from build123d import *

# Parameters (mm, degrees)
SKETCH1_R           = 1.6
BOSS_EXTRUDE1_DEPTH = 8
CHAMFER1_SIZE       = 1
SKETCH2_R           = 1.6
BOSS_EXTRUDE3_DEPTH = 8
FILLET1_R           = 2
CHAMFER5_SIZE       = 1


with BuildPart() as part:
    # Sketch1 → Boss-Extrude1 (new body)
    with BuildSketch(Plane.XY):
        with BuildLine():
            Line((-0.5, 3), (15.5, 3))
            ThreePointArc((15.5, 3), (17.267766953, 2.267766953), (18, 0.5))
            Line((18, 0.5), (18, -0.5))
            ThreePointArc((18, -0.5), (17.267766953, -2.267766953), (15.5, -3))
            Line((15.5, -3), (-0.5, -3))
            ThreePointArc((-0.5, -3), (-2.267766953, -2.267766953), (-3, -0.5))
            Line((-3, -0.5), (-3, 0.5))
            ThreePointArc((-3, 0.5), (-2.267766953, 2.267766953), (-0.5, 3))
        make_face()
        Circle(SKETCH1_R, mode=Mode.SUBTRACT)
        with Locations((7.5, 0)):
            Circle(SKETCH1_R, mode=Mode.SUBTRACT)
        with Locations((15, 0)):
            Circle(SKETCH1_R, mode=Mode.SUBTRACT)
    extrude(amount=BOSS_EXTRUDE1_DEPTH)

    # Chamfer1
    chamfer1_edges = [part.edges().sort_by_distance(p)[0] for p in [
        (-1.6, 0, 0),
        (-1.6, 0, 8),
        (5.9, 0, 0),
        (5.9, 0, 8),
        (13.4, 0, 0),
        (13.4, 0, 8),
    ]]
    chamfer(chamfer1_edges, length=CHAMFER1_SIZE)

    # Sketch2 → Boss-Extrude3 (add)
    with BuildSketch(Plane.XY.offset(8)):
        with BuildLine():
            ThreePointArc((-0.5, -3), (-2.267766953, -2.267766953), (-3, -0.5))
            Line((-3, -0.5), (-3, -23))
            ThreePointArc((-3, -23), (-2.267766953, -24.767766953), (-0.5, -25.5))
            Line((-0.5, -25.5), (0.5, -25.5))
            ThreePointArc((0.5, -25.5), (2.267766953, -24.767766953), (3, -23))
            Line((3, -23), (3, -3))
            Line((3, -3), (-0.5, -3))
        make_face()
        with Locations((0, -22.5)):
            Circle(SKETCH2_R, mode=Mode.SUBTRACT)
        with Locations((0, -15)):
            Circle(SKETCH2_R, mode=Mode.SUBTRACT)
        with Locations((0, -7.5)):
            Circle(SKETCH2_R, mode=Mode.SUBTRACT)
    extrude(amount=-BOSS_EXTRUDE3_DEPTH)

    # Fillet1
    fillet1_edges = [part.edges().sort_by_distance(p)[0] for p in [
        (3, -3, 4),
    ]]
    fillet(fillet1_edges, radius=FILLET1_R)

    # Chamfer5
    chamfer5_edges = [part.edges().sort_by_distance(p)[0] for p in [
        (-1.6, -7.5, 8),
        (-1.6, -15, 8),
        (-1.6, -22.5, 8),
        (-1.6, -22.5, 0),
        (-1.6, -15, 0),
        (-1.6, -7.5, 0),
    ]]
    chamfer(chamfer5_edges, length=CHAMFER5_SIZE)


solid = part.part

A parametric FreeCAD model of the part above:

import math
import FreeCAD as App
import Part
import Sketcher

V = App.Vector


def edges_at(feature, points):
    """Names of the edges that pass closest to the given points."""
    edges = feature.Shape.Edges
    near = lambda p: min(range(len(edges)), key=lambda i: edges[i].distToShape(Part.Vertex(*p))[0])
    return sorted({f"Edge{near(p) + 1}" for p in points})

doc = App.newDocument("Part")
body = doc.addObject("PartDesign::Body", "Body")

# Sketch on XY plane
sketch1 = doc.addObject("Sketcher::SketchObject", "Sketch")
body.addObject(sketch1)
sketch1.AttachmentSupport = (doc.XY_Plane, [""])
sketch1.MapMode = "FlatFace"
sketch1.addGeometry(Part.LineSegment(V(15.5, 3, 0), V(-0.5, 3, 0)), False)
sketch1.addGeometry(Part.ArcOfCircle(Part.Circle(V(-0.5, 0.5, 0), V(0, 0, 1), 2.5), math.radians(90), math.radians(180)), False)
sketch1.addGeometry(Part.LineSegment(V(-3, 0.5, 0), V(-3, -0.5, 0)), False)
sketch1.addGeometry(Part.ArcOfCircle(Part.Circle(V(-0.5, -0.5, 0), V(0, 0, 1), 2.5), math.radians(180), math.radians(270)), False)
sketch1.addGeometry(Part.LineSegment(V(-0.5, -3, 0), V(15.5, -3, 0)), False)
sketch1.addGeometry(Part.ArcOfCircle(Part.Circle(V(15.5, -0.5, 0), V(0, 0, 1), 2.5), math.radians(-90), math.radians(0)), False)
sketch1.addGeometry(Part.LineSegment(V(18, -0.5, 0), V(18, 0.5, 0)), False)
sketch1.addGeometry(Part.ArcOfCircle(Part.Circle(V(15.5, 0.5, 0), V(0, 0, 1), 2.5), math.radians(0), math.radians(90)), False)
sketch1.addGeometry(Part.Circle(V(15, 0, 0), V(0, 0, 1), 1.6), False)
sketch1.addGeometry(Part.Circle(V(7.5, 0, 0), V(0, 0, 1), 1.6), False)
sketch1.addGeometry(Part.Circle(V(0, 0, 0), V(0, 0, 1), 1.6), False)
sketch1.addConstraint(Sketcher.Constraint("Tangent", 0, 2, 1, 1))
sketch1.addConstraint(Sketcher.Constraint("Tangent", 1, 2, 2, 1))
sketch1.addConstraint(Sketcher.Constraint("Tangent", 2, 2, 3, 1))
sketch1.addConstraint(Sketcher.Constraint("Tangent", 3, 2, 4, 1))
sketch1.addConstraint(Sketcher.Constraint("Tangent", 4, 2, 5, 1))
sketch1.addConstraint(Sketcher.Constraint("Tangent", 5, 2, 6, 1))
sketch1.addConstraint(Sketcher.Constraint("Tangent", 6, 2, 7, 1))
sketch1.addConstraint(Sketcher.Constraint("Tangent", 7, 2, 0, 1))
sketch1.addConstraint(Sketcher.Constraint("Horizontal", 0))
sketch1.addConstraint(Sketcher.Constraint("Vertical", 2))
sketch1.addConstraint(Sketcher.Constraint("Horizontal", 4))
sketch1.addConstraint(Sketcher.Constraint("Vertical", 6))
sketch1.addConstraint(Sketcher.Constraint("Coincident", 10, 3, -1, 1))
sketch1.addConstraint(Sketcher.Constraint("Equal", 1, 3))
sketch1.addConstraint(Sketcher.Constraint("Equal", 3, 5))
sketch1.addConstraint(Sketcher.Constraint("Equal", 5, 7))
sketch1.addConstraint(Sketcher.Constraint("Equal", 8, 9))
sketch1.addConstraint(Sketcher.Constraint("Equal", 9, 10))
sketch1.addConstraint(Sketcher.Constraint("PointOnObject", 8, 3, -1))
sketch1.addConstraint(Sketcher.Constraint("PointOnObject", 9, 3, -1))
sketch1.addConstraint(Sketcher.Constraint("Diameter", 8, 3.2))
sketch1.addConstraint(Sketcher.Constraint("Radius", 1, 2.5))
sketch1.addConstraint(Sketcher.Constraint("DistanceX", 0, 2, 0, 1, 16.0))
sketch1.addConstraint(Sketcher.Constraint("DistanceY", 2, 2, 2, 1, 1.0))
sketch1.addConstraint(Sketcher.Constraint("DistanceX", -1, 1, 8, 3, 15.0))
sketch1.addConstraint(Sketcher.Constraint("DistanceY", -1, 1, 0, 2, 3.0))
sketch1.addConstraint(Sketcher.Constraint("DistanceX", 1, 2, -1, 1, 3.0))
sketch1.addConstraint(Sketcher.Constraint("DistanceX", 1, 3, 9, 3, 8.0))
pad1 = doc.addObject("PartDesign::Pad", "Pad")
body.addObject(pad1)
pad1.Profile = sketch1
pad1.Length = 8
doc.recompute()

chamfer = doc.addObject("PartDesign::Chamfer", "Chamfer")
body.addObject(chamfer)
chamfer.Base = (pad1, edges_at(pad1, [
    (-1.6, 0, 0),
    (-1.6, 0, 8),
    (5.9, 0, 0),
    (5.9, 0, 8),
    (13.4, 0, 0),
    (13.4, 0, 8),
]))
chamfer.Size = 1

# Sketch on XY plane
sketch2 = doc.addObject("Sketcher::SketchObject", "Sketch001")
body.addObject(sketch2)
sketch2.AttachmentSupport = (doc.XY_Plane, [""])
sketch2.MapMode = "FlatFace"
sketch2.AttachmentOffset = App.Placement(V(0, 0, 8), App.Rotation())
sketch2.addGeometry(Part.ArcOfCircle(Part.Circle(V(-0.5, -0.5, 0), V(0, 0, 1), 2.5), math.radians(180), math.radians(270)), False)
sketch2.addGeometry(Part.LineSegment(V(-3, -0.5, 0), V(-3, -23, 0)), False)
sketch2.addGeometry(Part.ArcOfCircle(Part.Circle(V(-0.5, -23, 0), V(0, 0, 1), 2.5), math.radians(180), math.radians(270)), False)
sketch2.addGeometry(Part.LineSegment(V(-0.5, -25.5, 0), V(0.5, -25.5, 0)), False)
sketch2.addGeometry(Part.ArcOfCircle(Part.Circle(V(0.5, -23, 0), V(0, 0, 1), 2.5), math.radians(-90), math.radians(0)), False)
sketch2.addGeometry(Part.LineSegment(V(3, -23, 0), V(3, -3, 0)), False)
sketch2.addGeometry(Part.LineSegment(V(3, -3, 0), V(-0.5, -3, 0)), False)
sketch2.addGeometry(Part.Circle(V(0, -22.5, 0), V(0, 0, 1), 1.6), False)
sketch2.addGeometry(Part.Circle(V(0, -15, 0), V(0, 0, 1), 1.6), False)
sketch2.addGeometry(Part.Circle(V(0, -7.5, 0), V(0, 0, 1), 1.6), False)
sketch2.addConstraint(Sketcher.Constraint("Tangent", 0, 1, 1, 1))
sketch2.addConstraint(Sketcher.Constraint("Tangent", 1, 2, 2, 1))
sketch2.addConstraint(Sketcher.Constraint("Tangent", 2, 2, 3, 1))
sketch2.addConstraint(Sketcher.Constraint("Tangent", 3, 2, 4, 1))
sketch2.addConstraint(Sketcher.Constraint("Tangent", 4, 2, 5, 1))
sketch2.addConstraint(Sketcher.Constraint("Coincident", 5, 2, 6, 1))
sketch2.addConstraint(Sketcher.Constraint("Tangent", 6, 2, 0, 2))
sketch2.addConstraint(Sketcher.Constraint("Vertical", 1))
sketch2.addConstraint(Sketcher.Constraint("Horizontal", 3))
sketch2.addConstraint(Sketcher.Constraint("Vertical", 5))
sketch2.addConstraint(Sketcher.Constraint("Horizontal", 6))
sketch2.addConstraint(Sketcher.Constraint("Equal", 0, 2))
sketch2.addConstraint(Sketcher.Constraint("Equal", 2, 4))
sketch2.addConstraint(Sketcher.Constraint("Equal", 7, 8))
sketch2.addConstraint(Sketcher.Constraint("Equal", 8, 9))
sketch2.addConstraint(Sketcher.Constraint("PointOnObject", 7, 3, -2))
sketch2.addConstraint(Sketcher.Constraint("PointOnObject", 8, 3, -2))
sketch2.addConstraint(Sketcher.Constraint("PointOnObject", 9, 3, -2))
sketch2.addConstraint(Sketcher.Constraint("Diameter", 7, 3.2))
sketch2.addConstraint(Sketcher.Constraint("Radius", 0, 2.5))
sketch2.addConstraint(Sketcher.Constraint("DistanceX", 3, 1, 3, 2, 1.0))
sketch2.addConstraint(Sketcher.Constraint("DistanceY", 5, 1, 5, 2, 20.0))
sketch2.addConstraint(Sketcher.Constraint("DistanceY", 2, 3, -1, 1, 23.0))
sketch2.addConstraint(Sketcher.Constraint("DistanceY", 8, 3, -1, 1, 15.0))
sketch2.addConstraint(Sketcher.Constraint("DistanceX", 0, 1, -1, 1, 3.0))
sketch2.addConstraint(Sketcher.Constraint("DistanceY", 7, 3, 0, 3, 22.0))
sketch2.addConstraint(Sketcher.Constraint("DistanceY", 9, 3, 0, 3, 7.0))
pad2 = doc.addObject("PartDesign::Pad", "Pad001")
body.addObject(pad2)
pad2.Profile = sketch2
pad2.Length = 8
pad2.Reversed = True
doc.recompute()

fillet = doc.addObject("PartDesign::Fillet", "Fillet")
body.addObject(fillet)
fillet.Base = (pad2, edges_at(pad2, [(3, -3, 4)]))
fillet.Radius = 2
doc.recompute()

chamfer2 = doc.addObject("PartDesign::Chamfer", "Chamfer001")
body.addObject(chamfer2)
chamfer2.Base = (fillet, edges_at(fillet, [
    (-1.6, -7.5, 8),
    (-1.6, -15, 8),
    (-1.6, -22.5, 8),
    (-1.6, -22.5, 0),
    (-1.6, -15, 0),
    (-1.6, -7.5, 0),
]))
chamfer2.Size = 1

doc.recompute()
